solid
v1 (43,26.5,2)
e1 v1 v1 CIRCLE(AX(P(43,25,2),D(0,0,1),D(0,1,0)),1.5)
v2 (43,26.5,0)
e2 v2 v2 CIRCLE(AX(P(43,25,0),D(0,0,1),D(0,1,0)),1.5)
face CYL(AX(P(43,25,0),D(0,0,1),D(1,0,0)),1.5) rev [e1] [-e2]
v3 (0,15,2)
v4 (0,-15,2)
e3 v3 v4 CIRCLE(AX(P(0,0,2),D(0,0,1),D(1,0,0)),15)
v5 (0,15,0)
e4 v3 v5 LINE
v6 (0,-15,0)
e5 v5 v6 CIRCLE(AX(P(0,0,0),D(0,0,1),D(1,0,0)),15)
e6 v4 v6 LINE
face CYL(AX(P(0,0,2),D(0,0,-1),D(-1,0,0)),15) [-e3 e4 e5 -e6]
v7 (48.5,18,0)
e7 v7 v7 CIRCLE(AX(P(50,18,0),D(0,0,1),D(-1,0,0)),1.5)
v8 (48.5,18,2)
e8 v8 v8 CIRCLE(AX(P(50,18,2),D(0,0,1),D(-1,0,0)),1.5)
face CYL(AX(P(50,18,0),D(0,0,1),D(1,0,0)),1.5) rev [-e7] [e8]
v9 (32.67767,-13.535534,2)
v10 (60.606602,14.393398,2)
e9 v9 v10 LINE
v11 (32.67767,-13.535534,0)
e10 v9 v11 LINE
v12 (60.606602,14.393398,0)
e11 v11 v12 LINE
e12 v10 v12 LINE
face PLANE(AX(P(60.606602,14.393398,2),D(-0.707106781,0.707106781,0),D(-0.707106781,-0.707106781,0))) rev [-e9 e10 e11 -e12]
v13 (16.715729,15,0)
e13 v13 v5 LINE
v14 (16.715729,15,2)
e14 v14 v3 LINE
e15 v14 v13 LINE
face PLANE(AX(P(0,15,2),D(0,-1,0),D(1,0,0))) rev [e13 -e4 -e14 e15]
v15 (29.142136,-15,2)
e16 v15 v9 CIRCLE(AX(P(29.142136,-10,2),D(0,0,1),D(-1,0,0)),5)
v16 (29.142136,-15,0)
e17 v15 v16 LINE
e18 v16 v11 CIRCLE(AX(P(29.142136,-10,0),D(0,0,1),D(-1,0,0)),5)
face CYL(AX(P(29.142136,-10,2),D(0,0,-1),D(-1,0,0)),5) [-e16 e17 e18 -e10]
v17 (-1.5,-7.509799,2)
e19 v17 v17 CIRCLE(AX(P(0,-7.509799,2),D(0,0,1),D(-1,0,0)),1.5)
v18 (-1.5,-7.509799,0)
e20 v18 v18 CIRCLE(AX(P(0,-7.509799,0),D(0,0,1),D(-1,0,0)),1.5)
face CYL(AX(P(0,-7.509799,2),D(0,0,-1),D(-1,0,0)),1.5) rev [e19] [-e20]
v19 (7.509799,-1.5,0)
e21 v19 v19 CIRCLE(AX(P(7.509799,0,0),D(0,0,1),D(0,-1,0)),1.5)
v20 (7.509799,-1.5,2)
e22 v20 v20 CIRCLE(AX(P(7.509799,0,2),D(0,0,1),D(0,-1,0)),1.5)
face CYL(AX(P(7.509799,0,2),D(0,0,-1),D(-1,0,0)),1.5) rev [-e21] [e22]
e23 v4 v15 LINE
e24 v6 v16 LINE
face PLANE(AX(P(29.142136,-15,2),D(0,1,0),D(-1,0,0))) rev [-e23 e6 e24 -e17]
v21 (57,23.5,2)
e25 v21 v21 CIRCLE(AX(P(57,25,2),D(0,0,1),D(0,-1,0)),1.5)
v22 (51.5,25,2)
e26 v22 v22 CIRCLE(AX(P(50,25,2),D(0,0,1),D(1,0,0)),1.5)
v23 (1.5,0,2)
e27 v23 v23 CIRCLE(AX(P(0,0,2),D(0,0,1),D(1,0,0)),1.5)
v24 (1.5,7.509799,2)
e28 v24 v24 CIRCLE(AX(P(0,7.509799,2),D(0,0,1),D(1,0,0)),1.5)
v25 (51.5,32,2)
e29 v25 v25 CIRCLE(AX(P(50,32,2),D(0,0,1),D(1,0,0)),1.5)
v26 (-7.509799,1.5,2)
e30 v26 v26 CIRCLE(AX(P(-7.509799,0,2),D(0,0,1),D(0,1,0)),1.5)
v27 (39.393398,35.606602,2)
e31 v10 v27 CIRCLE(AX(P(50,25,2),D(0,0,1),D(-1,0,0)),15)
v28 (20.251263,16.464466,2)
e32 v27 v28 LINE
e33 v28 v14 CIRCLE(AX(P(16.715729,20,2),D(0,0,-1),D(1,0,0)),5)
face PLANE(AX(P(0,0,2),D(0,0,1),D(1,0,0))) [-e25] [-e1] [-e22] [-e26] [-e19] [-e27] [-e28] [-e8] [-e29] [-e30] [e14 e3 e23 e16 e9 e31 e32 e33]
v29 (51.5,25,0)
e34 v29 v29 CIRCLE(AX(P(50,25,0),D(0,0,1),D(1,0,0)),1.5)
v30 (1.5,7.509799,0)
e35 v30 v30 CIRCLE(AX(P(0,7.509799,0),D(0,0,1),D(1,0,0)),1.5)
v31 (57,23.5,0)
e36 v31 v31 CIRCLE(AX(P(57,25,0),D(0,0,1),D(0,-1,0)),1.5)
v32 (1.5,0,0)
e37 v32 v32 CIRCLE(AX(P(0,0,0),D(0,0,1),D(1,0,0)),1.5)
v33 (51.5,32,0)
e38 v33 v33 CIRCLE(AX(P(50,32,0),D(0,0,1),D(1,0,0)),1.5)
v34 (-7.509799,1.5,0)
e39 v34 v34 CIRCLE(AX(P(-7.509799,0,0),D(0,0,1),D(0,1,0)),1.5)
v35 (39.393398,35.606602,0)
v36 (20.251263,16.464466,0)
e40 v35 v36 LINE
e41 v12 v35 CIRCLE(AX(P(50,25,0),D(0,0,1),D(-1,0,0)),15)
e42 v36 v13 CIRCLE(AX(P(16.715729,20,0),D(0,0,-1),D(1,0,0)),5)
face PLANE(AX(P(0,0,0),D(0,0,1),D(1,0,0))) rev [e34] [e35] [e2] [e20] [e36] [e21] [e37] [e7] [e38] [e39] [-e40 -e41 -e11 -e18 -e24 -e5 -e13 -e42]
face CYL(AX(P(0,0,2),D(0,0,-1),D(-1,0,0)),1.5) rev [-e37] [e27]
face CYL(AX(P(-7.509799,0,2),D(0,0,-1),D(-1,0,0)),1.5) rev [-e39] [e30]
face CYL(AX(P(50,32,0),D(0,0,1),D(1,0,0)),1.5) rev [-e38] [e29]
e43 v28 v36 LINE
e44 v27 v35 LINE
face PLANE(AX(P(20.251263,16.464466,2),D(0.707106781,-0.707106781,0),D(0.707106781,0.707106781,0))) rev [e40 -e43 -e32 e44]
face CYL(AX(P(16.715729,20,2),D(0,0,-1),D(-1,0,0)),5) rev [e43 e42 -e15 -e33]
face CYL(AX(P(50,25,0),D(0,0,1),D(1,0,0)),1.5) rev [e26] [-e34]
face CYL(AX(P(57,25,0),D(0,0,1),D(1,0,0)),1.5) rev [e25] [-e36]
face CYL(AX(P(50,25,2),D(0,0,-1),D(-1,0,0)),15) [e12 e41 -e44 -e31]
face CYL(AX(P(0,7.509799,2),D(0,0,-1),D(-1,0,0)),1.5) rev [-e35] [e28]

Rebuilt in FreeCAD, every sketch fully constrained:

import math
import FreeCAD as App
import Part
import Sketcher

V = App.Vector
Q = App.Units.Quantity

doc = App.newDocument("Part")
params = doc.addObject("Spreadsheet::Sheet", "Params")
for row, (alias, value) in enumerate([
    ("sketch1_radius", "15 mm"),
    ("sketch1_radius2", "5 mm"),
    ("pad1_length", "2 mm"),
    ("sketch2_diameter", "3 mm"),
    ("pocket1_length", "2 mm"),
    ("sketch3_diameter", "3 mm"),
    ("pocket2_length", "2 mm"),
    ("sketch4_diameter", "3 mm"),
    ("pocket3_length", "2 mm"),
    ("sketch5_diameter", "3 mm"),
    ("pocket4_length", "2 mm"),
], start=1):
    params.set(f"A{row}", alias)
    params.set(f"B{row}", "=" + value)
    params.setAlias(f"B{row}", alias)

body = doc.addObject("PartDesign::Body", "Body")

# Sketch on XY plane
sketch1 = doc.addObject("Sketcher::SketchObject", "Sketch")
body.addObject(sketch1)
sketch1.AttachmentSupport = (doc.XY_Plane, [""])
sketch1.MapMode = "FlatFace"
sketch1.addGeometry(Part.LineSegment(V(16.7, 15, 0), V(0, 15, 0)), False)
sketch1.addGeometry(Part.ArcOfCircle(Part.Circle(V(0, 0, 0), V(0, 0, 1), 15), math.radians(90), math.radians(270)), False)
sketch1.addGeometry(Part.LineSegment(V(0, -15, 0), V(29.1, -15, 0)), False)
sketch1.addGeometry(Part.ArcOfCircle(Part.Circle(V(29.1, -10, 0), V(0, 0, 1), 5), math.radians(-90), math.radians(-45)), False)
sketch1.addGeometry(Part.LineSegment(V(32.7, -13.5, 0), V(60.6, 14.4, 0)), False)
sketch1.addGeometry(Part.ArcOfCircle(Part.Circle(V(50, 25, 0), V(0, 0, 1), 15), math.radians(-45), math.radians(135)), False)
sketch1.addGeometry(Part.LineSegment(V(39.4, 35.6, 0), V(20.3, 16.5, 0)), False)
sketch1.addGeometry(Part.ArcOfCircle(Part.Circle(V(16.7, 20, 0), V(0, 0, 1), 5), math.radians(-90), math.radians(-45)), False)
sketch1.addConstraint(Sketcher.Constraint("Tangent", 0, 2, 1, 1))
sketch1.addConstraint(Sketcher.Constraint("Tangent", 1, 2, 2, 1))
sketch1.addConstraint(Sketcher.Constraint("Tangent", 2, 2, 3, 1))
sketch1.addConstraint(Sketcher.Constraint("Tangent", 3, 2, 4, 1))
sketch1.addConstraint(Sketcher.Constraint("Tangent", 4, 2, 5, 1))
sketch1.addConstraint(Sketcher.Constraint("Tangent", 5, 2, 6, 1))
sketch1.addConstraint(Sketcher.Constraint("Tangent", 6, 2, 7, 2))
sketch1.addConstraint(Sketcher.Constraint("Tangent", 7, 1, 0, 1))
sketch1.addConstraint(Sketcher.Constraint("Horizontal", 0))
sketch1.addConstraint(Sketcher.Constraint("Horizontal", 2))
sketch1.addConstraint(Sketcher.Constraint("Coincident", 1, 3, -1, 1))
sketch1.addConstraint(Sketcher.Constraint("Equal", 1, 5))
sketch1.addConstraint(Sketcher.Constraint("Equal", 3, 7))
sketch1.addConstraint(Sketcher.Constraint("Parallel", 4, 6))
sketch1.addConstraint(Sketcher.Constraint("Radius", 1, 15.0))
sketch1.addConstraint(Sketcher.Constraint("Radius", 3, 5.0))
sketch1.addConstraint(Sketcher.Constraint("Angle", 4, Q("45 deg")))
sketch1.addConstraint(Sketcher.Constraint("DistanceX", -1, 1, 5, 3, 50.0))
sketch1.addConstraint(Sketcher.Constraint("DistanceY", -1, 1, 5, 3, 25.0))
sketch1.setExpression("Constraints[14]", "Params.sketch1_radius")
sketch1.setExpression("Constraints[15]", "Params.sketch1_radius2")
pad1 = doc.addObject("PartDesign::Pad", "Pad")
body.addObject(pad1)
pad1.Profile = sketch1
pad1.setExpression("Length", "Params.pad1_length")

# Sketch on XY plane
sketch2 = doc.addObject("Sketcher::SketchObject", "Sketch001")
body.addObject(sketch2)
sketch2.AttachmentSupport = (doc.XY_Plane, [""])
sketch2.MapMode = "FlatFace"
sketch2.addGeometry(Part.Circle(V(0, 0, 0), V(0, 0, 1), 1.5), False)
sketch2.addConstraint(Sketcher.Constraint("Coincident", 0, 3, -1, 1))
sketch2.addConstraint(Sketcher.Constraint("Diameter", 0, 3.0))
sketch2.setExpression("Constraints[1]", "Params.sketch2_diameter")
pocket1 = doc.addObject("PartDesign::Pocket", "Pocket")
body.addObject(pocket1)
pocket1.Profile = sketch2
pocket1.setExpression("Length", "Params.pocket1_length")
pocket1.Reversed = True

# Sketch on XY plane
sketch3 = doc.addObject("Sketcher::SketchObject", "Sketch002")
body.addObject(sketch3)
sketch3.AttachmentSupport = (doc.XY_Plane, [""])
sketch3.MapMode = "FlatFace"
sketch3.addGeometry(Part.Circle(V(0, 7.5, 0), V(0, 0, 1), 1.5), False)
sketch3.addConstraint(Sketcher.Constraint("PointOnObject", 0, 3, -2))
sketch3.addConstraint(Sketcher.Constraint("Diameter", 0, 3.0))
sketch3.addConstraint(Sketcher.Constraint("DistanceY", -1, 1, 0, 3, 7.509799))
sketch3.setExpression("Constraints[1]", "Params.sketch3_diameter")
pocket2 = doc.addObject("PartDesign::Pocket", "Pocket001")
body.addObject(pocket2)
pocket2.Profile = sketch3
pocket2.setExpression("Length", "Params.pocket2_length")
pocket2.Reversed = True
doc.recompute()

polarpattern = doc.addObject("PartDesign::PolarPattern", "PolarPattern")
body.addObject(polarpattern)
polarpattern.Originals = [pocket2]
polarpattern.Axis = (doc.Z_Axis, [""])
polarpattern.Angle = 360
polarpattern.Occurrences = 4
body.Tip = polarpattern

# Sketch on XY plane
sketch4 = doc.addObject("Sketcher::SketchObject", "Sketch003")
body.addObject(sketch4)
sketch4.AttachmentSupport = (doc.XY_Plane, [""])
sketch4.MapMode = "FlatFace"
sketch4.AttachmentOffset = App.Placement(V(0, 0, 2), App.Rotation())
sketch4.addGeometry(Part.Circle(V(50, 25, 0), V(0, 0, 1), 1.5), False)
sketch4.addConstraint(Sketcher.Constraint("Diameter", 0, 3.0))
sketch4.addConstraint(Sketcher.Constraint("DistanceX", -1, 1, 0, 3, 50.0))
sketch4.addConstraint(Sketcher.Constraint("DistanceY", -1, 1, 0, 3, 25.0))
sketch4.setExpression("Constraints[0]", "Params.sketch4_diameter")
pocket3 = doc.addObject("PartDesign::Pocket", "Pocket002")
body.addObject(pocket3)
pocket3.Profile = sketch4
pocket3.setExpression("Length", "Params.pocket3_length")

# Sketch on XY plane
sketch5 = doc.addObject("Sketcher::SketchObject", "Sketch004")
body.addObject(sketch5)
sketch5.AttachmentSupport = (doc.XY_Plane, [""])
sketch5.MapMode = "FlatFace"
sketch5.AttachmentOffset = App.Placement(V(0, 0, 2), App.Rotation())
sketch5.addGeometry(Part.Circle(V(50, 32, 0), V(0, 0, 1), 1.5), False)
sketch5.addConstraint(Sketcher.Constraint("Diameter", 0, 3.0))
sketch5.addConstraint(Sketcher.Constraint("DistanceX", -1, 1, 0, 3, 50.0))
sketch5.addConstraint(Sketcher.Constraint("DistanceY", -1, 1, 0, 3, 32.0))
sketch5.setExpression("Constraints[0]", "Params.sketch5_diameter")
pocket4 = doc.addObject("PartDesign::Pocket", "Pocket003")
body.addObject(pocket4)
pocket4.Profile = sketch5
pocket4.setExpression("Length", "Params.pocket4_length")
doc.recompute()

datumline = doc.addObject("PartDesign::Line", "DatumLine")
body.addObject(datumline)
datumline.Placement = App.Placement(V(50, 25, 0), App.Rotation(V(0, 0, 1), V(0, 0, 1)))
polarpattern2 = doc.addObject("PartDesign::PolarPattern", "PolarPattern001")
body.addObject(polarpattern2)
polarpattern2.Originals = [pocket4]
polarpattern2.Axis = (datumline, [""])
polarpattern2.Angle = 360
polarpattern2.Occurrences = 4
body.Tip = polarpattern2

doc.recompute()
